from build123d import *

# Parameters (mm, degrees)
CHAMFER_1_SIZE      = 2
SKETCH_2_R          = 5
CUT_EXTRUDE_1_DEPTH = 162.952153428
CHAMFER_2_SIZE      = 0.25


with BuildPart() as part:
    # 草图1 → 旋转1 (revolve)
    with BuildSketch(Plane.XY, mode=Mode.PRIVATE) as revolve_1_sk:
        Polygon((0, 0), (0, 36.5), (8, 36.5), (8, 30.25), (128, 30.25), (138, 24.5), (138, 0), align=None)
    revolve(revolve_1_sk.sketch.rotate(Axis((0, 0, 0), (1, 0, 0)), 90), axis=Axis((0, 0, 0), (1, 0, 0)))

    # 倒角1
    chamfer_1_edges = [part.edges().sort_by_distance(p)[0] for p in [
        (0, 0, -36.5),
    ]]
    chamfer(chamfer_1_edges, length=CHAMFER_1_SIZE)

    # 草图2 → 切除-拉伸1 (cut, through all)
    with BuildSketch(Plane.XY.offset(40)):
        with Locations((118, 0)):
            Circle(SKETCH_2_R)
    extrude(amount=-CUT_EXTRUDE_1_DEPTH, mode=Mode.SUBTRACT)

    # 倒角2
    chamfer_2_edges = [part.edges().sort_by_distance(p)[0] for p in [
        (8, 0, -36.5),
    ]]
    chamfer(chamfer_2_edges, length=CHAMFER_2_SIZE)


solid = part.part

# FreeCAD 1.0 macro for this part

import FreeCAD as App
import Part
import Sketcher
Q = App.Units.Quantity


def edges_at(feature, points):
    """Names of the edges that pass closest to the given points."""
    edges = feature.Shape.Edges
    near = lambda p: min(range(len(edges)), key=lambda i: edges[i].distToShape(Part.Vertex(*p))[0])
    return sorted({f"Edge{near(p) + 1}" for p in points})


def add_polygon(sketch, points):
    """Adds a closed chain of lines whose ends are joined by coincident constraints."""
    first, n = sketch.GeometryCount, len(points)
    for a, b in zip(points, points[1:] + points[:1]):
        sketch.addGeometry(Part.LineSegment(App.Vector(*a, 0), App.Vector(*b, 0)), False)
    for i in range(n):
        sketch.addConstraint(Sketcher.Constraint("Coincident", first + i, 2, first + (i + 1) % n, 1))

doc = App.newDocument("Part")
params = doc.addObject("Spreadsheet::Sheet", "Params")
for row, (alias, value) in enumerate([
    ("sketch1_width", "138 mm"),
    ("sketch1_width2", "120 mm"),
    ("sketch1_width3", "8 mm"),
    ("sketch1_height", "36.5 mm"),
    ("sketch1_height2", "24.5 mm"),
    ("revolution_angle", "360 deg"),
    ("chamfer_size", "2 mm"),
    ("sketch2_diameter", "10 mm"),
    ("chamfer2_size", "0.25 mm"),
], start=1):
    params.set(f"A{row}", alias)
    params.set(f"B{row}", "=" + value)
    params.setAlias(f"B{row}", alias)

body = doc.addObject("PartDesign::Body", "Body")

# Sketch on XY plane
sketch1 = doc.addObject("Sketcher::SketchObject", "Sketch")
body.addObject(sketch1)
sketch1.AttachmentSupport = (doc.XY_Plane, [""])
sketch1.MapMode = "FlatFace"
add_polygon(sketch1, [(0, 36.5), (0, 0), (138, 0), (138, 24.5), (128, 30.25), (8, 30.25), (8, 36.5)])  # lines 0-6
sketch1.addConstraint([
    Sketcher.Constraint("Vertical", 0),
    Sketcher.Constraint("Horizontal", 1),
    Sketcher.Constraint("Vertical", 2),
    Sketcher.Constraint("Horizontal", 4),
    Sketcher.Constraint("Vertical", 5),
    Sketcher.Constraint("Horizontal", 6),
    Sketcher.Constraint("Coincident", 0, 2, -1, 1),
    Sketcher.Constraint("DistanceX", 1, 1, 1, 2, Q("138 mm")),
    Sketcher.Constraint("DistanceX", 4, 2, 4, 1, Q("120 mm")),
    Sketcher.Constraint("DistanceX", 6, 2, 6, 1, Q("8 mm")),
    Sketcher.Constraint("DistanceY", 0, 2, 0, 1, Q("36.5 mm")),
    Sketcher.Constraint("DistanceY", 2, 1, 2, 2, Q("24.5 mm")),
    Sketcher.Constraint("DistanceY", 5, 1, 5, 2, Q("6.25 mm")),
])
sketch1.setExpression("Constraints[14]", "Params.sketch1_width")
sketch1.setExpression("Constraints[15]", "Params.sketch1_width2")
sketch1.setExpression("Constraints[16]", "Params.sketch1_width3")
sketch1.setExpression("Constraints[17]", "Params.sketch1_height")
sketch1.setExpression("Constraints[18]", "Params.sketch1_height2")
revolution = doc.addObject("PartDesign::Revolution", "Revolution")
body.addObject(revolution)
revolution.Profile = sketch1
revolution.ReferenceAxis = (sketch1, ["H_Axis"])
revolution.setExpression("Angle", "Params.revolution_angle")
doc.recompute()

chamfer = doc.addObject("PartDesign::Chamfer", "Chamfer")
body.addObject(chamfer)
chamfer.Base = (revolution, edges_at(revolution, [(0, 0, -36.5)]))
chamfer.setExpression("Size", "Params.chamfer_size")

# Sketch on XY plane
sketch2 = doc.addObject("Sketcher::SketchObject", "Sketch001")
body.addObject(sketch2)
sketch2.AttachmentSupport = (doc.XY_Plane, [""])
sketch2.MapMode = "FlatFace"
sketch2.AttachmentOffset = App.Placement(App.Vector(0, 0, 40), App.Rotation())
sketch2.addGeometry(Part.Circle(App.Vector(118, 0, 0), App.Vector(0, 0, 1), 5), False)
sketch2.addConstraint([
    Sketcher.Constraint("PointOnObject", 0, 3, -1),
    Sketcher.Constraint("Diameter", 0, Q("10 mm")),
    Sketcher.Constraint("DistanceX", -1, 1, 0, 3, Q("118 mm")),
])
sketch2.setExpression("Constraints[1]", "Params.sketch2_diameter")
pocket1 = doc.addObject("PartDesign::Pocket", "Pocket")
body.addObject(pocket1)
pocket1.Profile = sketch2
pocket1.Type = "ThroughAll"
doc.recompute()

chamfer2 = doc.addObject("PartDesign::Chamfer", "Chamfer001")
body.addObject(chamfer2)
chamfer2.Base = (pocket1, edges_at(pocket1, [(8, 0, -36.5)]))
chamfer2.setExpression("Size", "Params.chamfer2_size")

doc.recompute()
